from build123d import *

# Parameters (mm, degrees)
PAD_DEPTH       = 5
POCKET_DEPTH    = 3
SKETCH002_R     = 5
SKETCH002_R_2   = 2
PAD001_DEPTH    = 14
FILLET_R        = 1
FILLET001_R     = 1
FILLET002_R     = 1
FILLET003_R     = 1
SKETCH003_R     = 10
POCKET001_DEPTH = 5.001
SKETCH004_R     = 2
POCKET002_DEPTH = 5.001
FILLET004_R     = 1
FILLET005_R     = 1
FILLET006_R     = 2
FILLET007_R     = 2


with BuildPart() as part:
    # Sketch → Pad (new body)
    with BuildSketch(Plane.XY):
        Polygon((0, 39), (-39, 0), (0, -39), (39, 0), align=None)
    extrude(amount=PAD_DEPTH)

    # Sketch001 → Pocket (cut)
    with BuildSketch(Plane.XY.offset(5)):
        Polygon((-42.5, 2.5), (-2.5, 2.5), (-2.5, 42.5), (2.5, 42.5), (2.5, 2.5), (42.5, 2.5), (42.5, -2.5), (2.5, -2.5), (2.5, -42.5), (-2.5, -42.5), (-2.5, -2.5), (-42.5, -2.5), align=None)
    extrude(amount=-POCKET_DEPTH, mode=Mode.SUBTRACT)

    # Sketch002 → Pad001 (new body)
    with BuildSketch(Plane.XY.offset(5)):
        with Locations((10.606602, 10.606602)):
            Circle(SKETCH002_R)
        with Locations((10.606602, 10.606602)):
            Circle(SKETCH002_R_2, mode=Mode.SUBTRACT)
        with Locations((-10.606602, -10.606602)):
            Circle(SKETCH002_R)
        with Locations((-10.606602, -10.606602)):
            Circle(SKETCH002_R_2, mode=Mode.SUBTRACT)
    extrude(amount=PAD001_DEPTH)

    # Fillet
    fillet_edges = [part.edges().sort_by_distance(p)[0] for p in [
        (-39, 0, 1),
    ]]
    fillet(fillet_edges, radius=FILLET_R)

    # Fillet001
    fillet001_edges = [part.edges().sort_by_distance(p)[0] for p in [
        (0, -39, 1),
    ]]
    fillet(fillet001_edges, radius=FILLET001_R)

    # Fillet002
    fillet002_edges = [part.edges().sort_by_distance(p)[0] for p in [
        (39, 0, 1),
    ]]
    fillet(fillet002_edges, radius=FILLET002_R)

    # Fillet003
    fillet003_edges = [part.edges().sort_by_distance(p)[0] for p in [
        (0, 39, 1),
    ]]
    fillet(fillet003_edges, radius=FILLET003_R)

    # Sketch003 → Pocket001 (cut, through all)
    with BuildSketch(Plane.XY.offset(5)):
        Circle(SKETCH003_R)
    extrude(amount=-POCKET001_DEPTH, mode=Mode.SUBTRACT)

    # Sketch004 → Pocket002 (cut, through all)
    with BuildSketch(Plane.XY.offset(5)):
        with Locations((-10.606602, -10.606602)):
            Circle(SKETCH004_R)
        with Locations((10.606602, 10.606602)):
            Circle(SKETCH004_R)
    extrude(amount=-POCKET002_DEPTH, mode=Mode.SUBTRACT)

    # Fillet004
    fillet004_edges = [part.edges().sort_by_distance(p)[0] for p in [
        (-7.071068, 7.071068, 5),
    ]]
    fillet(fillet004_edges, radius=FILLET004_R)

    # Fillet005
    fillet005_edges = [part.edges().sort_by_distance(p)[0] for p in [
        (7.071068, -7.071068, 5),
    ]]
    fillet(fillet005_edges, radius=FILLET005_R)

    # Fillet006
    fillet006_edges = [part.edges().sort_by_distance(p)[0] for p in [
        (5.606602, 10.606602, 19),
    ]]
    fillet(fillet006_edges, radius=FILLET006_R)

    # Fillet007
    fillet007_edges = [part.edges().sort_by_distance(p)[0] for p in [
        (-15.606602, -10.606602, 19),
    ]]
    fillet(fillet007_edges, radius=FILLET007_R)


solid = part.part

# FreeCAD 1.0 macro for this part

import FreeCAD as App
import Part
import Sketcher
Q = App.Units.Quantity


def edges_at(feature, points):
    """Names of the edges that pass closest to the given points."""
    edges = feature.Shape.Edges
    near = lambda p: min(range(len(edges)), key=lambda i: edges[i].distToShape(Part.Vertex(*p))[0])
    return sorted({f"Edge{near(p) + 1}" for p in points})


def add_polygon(sketch, points):
    """Adds a closed chain of lines whose ends are joined by coincident constraints."""
    first, n = sketch.GeometryCount, len(points)
    for a, b in zip(points, points[1:] + points[:1]):
        sketch.addGeometry(Part.LineSegment(App.Vector(*a, 0), App.Vector(*b, 0)), False)
    for i in range(n):
        sketch.addConstraint(Sketcher.Constraint("Coincident", first + i, 2, first + (i + 1) % n, 1))

doc = App.newDocument("Part")
body = doc.addObject("PartDesign::Body", "Body")

# Sketch on XY plane
sketch1 = body.newObject("Sketcher::SketchObject", "Sketch")
sketch1.AttachmentSupport = (doc.getObject("XY_Plane"), [""])
sketch1.MapMode = "FlatFace"
add_polygon(sketch1, [(0, 39), (-39, 0), (0, -39), (39, 0)])  # lines 0-3
sketch1.addConstraint(Sketcher.Constraint("Symmetric", 0, 2, 2, 2, -1, 1))
sketch1.addConstraint(Sketcher.Constraint("Symmetric", 1, 2, 3, 2, -1, 1))
sketch1.addConstraint(Sketcher.Constraint("PointOnObject", 0, 2, -1))
sketch1.addConstraint(Sketcher.Constraint("PointOnObject", 1, 2, -2))
sketch1.addConstraint(Sketcher.Constraint("Perpendicular", 0, 1))
sketch1.addConstraint(Sketcher.Constraint("DistanceX", 0, 2, -1, 1, Q("39 mm")))
pad1 = body.newObject("PartDesign::Pad", "Pad")
pad1.Profile = sketch1
pad1.Length = 5

# Sketch on XY plane
sketch2 = body.newObject("Sketcher::SketchObject", "Sketch001")
sketch2.AttachmentSupport = (doc.getObject("XY_Plane"), [""])
sketch2.MapMode = "FlatFace"
sketch2.AttachmentOffset = App.Placement(App.Vector(0, 0, 5), App.Rotation())
add_polygon(sketch2, [(-2, 2), (-42, 2), (-42, -2), (-2, -2), (-2, -42), (2, -42), (2, -2), (42, -2), (42, 2), (2, 2), (2, 42), (-2, 42)])  # lines 0-11
sketch2.addConstraint(Sketcher.Constraint("Horizontal", 0))
sketch2.addConstraint(Sketcher.Constraint("Vertical", 1))
sketch2.addConstraint(Sketcher.Constraint("Horizontal", 2))
sketch2.addConstraint(Sketcher.Constraint("Vertical", 3))
sketch2.addConstraint(Sketcher.Constraint("Horizontal", 4))
sketch2.addConstraint(Sketcher.Constraint("Vertical", 5))
sketch2.addConstraint(Sketcher.Constraint("Horizontal", 6))
sketch2.addConstraint(Sketcher.Constraint("Vertical", 7))
sketch2.addConstraint(Sketcher.Constraint("Horizontal", 8))
sketch2.addConstraint(Sketcher.Constraint("Vertical", 9))
sketch2.addConstraint(Sketcher.Constraint("Horizontal", 10))
sketch2.addConstraint(Sketcher.Constraint("Vertical", 11))
sketch2.addConstraint(Sketcher.Constraint("Symmetric", 0, 2, 6, 2, -1, 1))
sketch2.addConstraint(Sketcher.Constraint("Symmetric", 2, 2, 8, 2, -1, 1))
sketch2.addConstraint(Sketcher.Constraint("Symmetric", 4, 2, 10, 2, -1, 1))
sketch2.addConstraint(Sketcher.Constraint("Symmetric", 2, 2, 5, 2, -2))
sketch2.addConstraint(Sketcher.Constraint("Equal", 10, 1))
sketch2.addConstraint(Sketcher.Constraint("Equal", 8, 3))
sketch2.addConstraint(Sketcher.Constraint("DistanceX", 0, 2, 0, 1, Q("40 mm")))
sketch2.addConstraint(Sketcher.Constraint("DistanceX", 4, 1, 4, 2, Q("5 mm")))
pocket1 = body.newObject("PartDesign::Pocket", "Pocket")
pocket1.Profile = sketch2
pocket1.Length = 3

# Sketch on XY plane
sketch3 = body.newObject("Sketcher::SketchObject", "Sketch002")
sketch3.AttachmentSupport = (doc.getObject("XY_Plane"), [""])
sketch3.MapMode = "FlatFace"
sketch3.AttachmentOffset = App.Placement(App.Vector(0, 0, 5), App.Rotation())
sketch3.addGeometry(Part.Circle(App.Vector(10.6, 10.6, 0), App.Vector(0, 0, 1), 5), False)
sketch3.addGeometry(Part.Circle(App.Vector(10.6, 10.6, 0), App.Vector(0, 0, 1), 2), False)
sketch3.addGeometry(Part.Circle(App.Vector(-10.6, -10.6, 0), App.Vector(0, 0, 1), 5), False)
sketch3.addGeometry(Part.Circle(App.Vector(-10.6, -10.6, 0), App.Vector(0, 0, 1), 2), False)
sketch3.addConstraint(Sketcher.Constraint("Coincident", 1, 3, 0, 3))
sketch3.addConstraint(Sketcher.Constraint("Coincident", 3, 3, 2, 3))
sketch3.addConstraint(Sketcher.Constraint("Equal", 0, 2))
sketch3.addConstraint(Sketcher.Constraint("Equal", 1, 3))
sketch3.addConstraint(Sketcher.Constraint("Symmetric", 0, 3, 2, 3, -1, 1))
sketch3.addConstraint(Sketcher.Constraint("Diameter", 0, Q("10 mm")))
sketch3.addConstraint(Sketcher.Constraint("Diameter", 1, Q("4 mm")))
sketch3.addConstraint(Sketcher.Constraint("DistanceX", -1, 1, 0, 3, Q("10.606602 mm")))
sketch3.addConstraint(Sketcher.Constraint("DistanceY", -1, 1, 0, 3, Q("10.606602 mm")))
pad2 = body.newObject("PartDesign::Pad", "Pad001")
pad2.Profile = sketch3
pad2.Length = 14
doc.recompute()

fillet = body.newObject("PartDesign::Fillet", "Fillet")
fillet.Base = (pad2, edges_at(pad2, [(-39, 0, 1)]))
fillet.Radius = 1
doc.recompute()

fillet2 = body.newObject("PartDesign::Fillet", "Fillet001")
fillet2.Base = (fillet, edges_at(fillet, [(0, -39, 1)]))
fillet2.Radius = 1
doc.recompute()

fillet3 = body.newObject("PartDesign::Fillet", "Fillet002")
fillet3.Base = (fillet2, edges_at(fillet2, [(39, 0, 1)]))
fillet3.Radius = 1
doc.recompute()

fillet4 = body.newObject("PartDesign::Fillet", "Fillet003")
fillet4.Base = (fillet3, edges_at(fillet3, [(0, 39, 1)]))
fillet4.Radius = 1

# Sketch on XY plane
sketch4 = body.newObject("Sketcher::SketchObject", "Sketch003")
sketch4.AttachmentSupport = (doc.getObject("XY_Plane"), [""])
sketch4.MapMode = "FlatFace"
sketch4.AttachmentOffset = App.Placement(App.Vector(0, 0, 5), App.Rotation())
sketch4.addGeometry(Part.Circle(App.Vector(0, 0, 0), App.Vector(0, 0, 1), 10), False)
sketch4.addConstraint(Sketcher.Constraint("Coincident", 0, 3, -1, 1))
sketch4.addConstraint(Sketcher.Constraint("Diameter", 0, Q("20 mm")))
pocket2 = body.newObject("PartDesign::Pocket", "Pocket001")
pocket2.Profile = sketch4
pocket2.Type = "ThroughAll"

# Sketch on XY plane
sketch5 = body.newObject("Sketcher::SketchObject", "Sketch004")
sketch5.AttachmentSupport = (doc.getObject("XY_Plane"), [""])
sketch5.MapMode = "FlatFace"
sketch5.AttachmentOffset = App.Placement(App.Vector(0, 0, 5), App.Rotation())
sketch5.addGeometry(Part.Circle(App.Vector(-10.6, -10.6, 0), App.Vector(0, 0, 1), 2), False)
sketch5.addGeometry(Part.Circle(App.Vector(10.6, 10.6, 0), App.Vector(0, 0, 1), 2), False)
sketch5.addConstraint(Sketcher.Constraint("Equal", 0, 1))
sketch5.addConstraint(Sketcher.Constraint("Symmetric", 0, 3, 1, 3, -1, 1))
sketch5.addConstraint(Sketcher.Constraint("Diameter", 0, Q("4 mm")))
sketch5.addConstraint(Sketcher.Constraint("DistanceX", 0, 3, -1, 1, Q("10.606602 mm")))
sketch5.addConstraint(Sketcher.Constraint("DistanceY", 0, 3, -1, 1, Q("10.606602 mm")))
pocket3 = body.newObject("PartDesign::Pocket", "Pocket002")
pocket3.Profile = sketch5
pocket3.Type = "ThroughAll"
doc.recompute()

fillet5 = body.newObject("PartDesign::Fillet", "Fillet004")
fillet5.Base = (pocket3, edges_at(pocket3, [(-7.071, 7.071, 5)]))
fillet5.Radius = 1
doc.recompute()

fillet6 = body.newObject("PartDesign::Fillet", "Fillet005")
fillet6.Base = (fillet5, edges_at(fillet5, [(7.071, -7.071, 5)]))
fillet6.Radius = 1
doc.recompute()

fillet7 = body.newObject("PartDesign::Fillet", "Fillet006")
fillet7.Base = (fillet6, edges_at(fillet6, [(5.607, 10.607, 19)]))
fillet7.Radius = 2
doc.recompute()

fillet8 = body.newObject("PartDesign::Fillet", "Fillet007")
fillet8.Base = (fillet7, edges_at(fillet7, [(-15.607, -10.607, 19)]))
fillet8.Radius = 2

doc.recompute()
